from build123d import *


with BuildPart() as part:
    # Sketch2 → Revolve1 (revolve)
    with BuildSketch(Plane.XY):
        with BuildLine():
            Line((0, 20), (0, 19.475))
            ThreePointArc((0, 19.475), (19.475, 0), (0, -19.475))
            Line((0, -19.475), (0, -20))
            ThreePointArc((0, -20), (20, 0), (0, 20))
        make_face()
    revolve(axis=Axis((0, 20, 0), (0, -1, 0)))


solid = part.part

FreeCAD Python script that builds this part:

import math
import FreeCAD as App
import Part
import Sketcher
Q = App.Units.Quantity

doc = App.newDocument("Part")
body = doc.addObject("PartDesign::Body", "Body")

sketch1 = body.newObject("Sketcher::SketchObject", "Sketch")
sketch1.AttachmentSupport = (doc.getObject("XY_Plane"), [""])
sketch1.MapMode = "FlatFace"
sketch1.addGeometry([
    Part.LineSegment(App.Vector(0, 20, 0), App.Vector(0, 19.5, 0)),
    Part.ArcOfCircle(Part.Circle(App.Vector(0, 0, 0), App.Vector(0, 0, 1), 19.5), math.radians(-90), math.radians(90)),
    Part.LineSegment(App.Vector(0, -19.5, 0), App.Vector(0, -20, 0)),
    Part.ArcOfCircle(Part.Circle(App.Vector(0, 0, 0), App.Vector(0, 0, 1), 20), math.radians(-90), math.radians(90)),
], False)
sketch1.addConstraint([
    Sketcher.Constraint("Coincident", 0, 2, 1, 2),
    Sketcher.Constraint("Coincident", 1, 1, 2, 1),
    Sketcher.Constraint("Coincident", 2, 2, 3, 1),
    Sketcher.Constraint("Coincident", 3, 2, 0, 1),
    Sketcher.Constraint("Vertical", 0),
    Sketcher.Constraint("Vertical", 2),
    Sketcher.Constraint("Coincident", 1, 3, -1, 1),
    Sketcher.Constraint("Coincident", 3, 3, -1, 1),
    Sketcher.Constraint("PointOnObject", 0, 2, -2),
    Sketcher.Constraint("PointOnObject", 1, 1, -2),
    Sketcher.Constraint("Radius", 3, Q("20 mm")),
    Sketcher.Constraint("Radius", 1, Q("19.475 mm")),
])
revolution = body.newObject("PartDesign::Revolution", "Revolution")
revolution.Profile = sketch1
revolution.ReferenceAxis = (sketch1, ["V_Axis"])
revolution.Angle = 360

doc.recompute()
